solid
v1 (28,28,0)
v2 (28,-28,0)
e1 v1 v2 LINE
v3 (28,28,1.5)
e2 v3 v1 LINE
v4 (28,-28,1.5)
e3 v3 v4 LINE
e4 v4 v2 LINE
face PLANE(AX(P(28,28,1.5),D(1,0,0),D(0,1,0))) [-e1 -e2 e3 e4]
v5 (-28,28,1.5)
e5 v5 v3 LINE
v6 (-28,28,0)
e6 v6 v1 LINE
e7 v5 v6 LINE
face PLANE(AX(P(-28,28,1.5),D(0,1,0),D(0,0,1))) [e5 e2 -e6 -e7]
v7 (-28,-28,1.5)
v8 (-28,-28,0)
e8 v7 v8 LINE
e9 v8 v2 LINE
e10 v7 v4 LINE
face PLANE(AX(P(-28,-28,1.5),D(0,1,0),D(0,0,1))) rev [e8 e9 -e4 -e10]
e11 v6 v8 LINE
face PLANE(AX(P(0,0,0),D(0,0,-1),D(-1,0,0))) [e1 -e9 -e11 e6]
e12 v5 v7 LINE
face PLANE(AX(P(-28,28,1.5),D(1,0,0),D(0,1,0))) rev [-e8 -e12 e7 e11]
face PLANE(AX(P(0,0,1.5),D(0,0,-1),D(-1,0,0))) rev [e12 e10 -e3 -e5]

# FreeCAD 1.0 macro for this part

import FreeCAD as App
import Part
import Sketcher
from FreeCAD import Vector

doc = App.newDocument("Part")
params = doc.addObject("Spreadsheet::Sheet", "Params")
for row, (alias, value) in enumerate([
    ("sketch1_width", "56 mm"),
    ("pad1_length", "1.5 mm"),
], start=1):
    params.set(f"A{row}", alias)
    params.set(f"B{row}", "=" + value)
    params.setAlias(f"B{row}", alias)

body = doc.addObject("PartDesign::Body", "Body")

# Sketch on XY plane
sketch1 = doc.addObject("Sketcher::SketchObject", "Sketch")
body.addObject(sketch1)
sketch1.AttachmentSupport = (doc.XY_Plane, [""])
sketch1.MapMode = "FlatFace"
sketch1.addGeometry(Part.LineSegment(Vector(-28, 28, 0), Vector(-28, -28, 0)), False)
sketch1.addGeometry(Part.LineSegment(Vector(-28, -28, 0), Vector(28, -28, 0)), False)
sketch1.addGeometry(Part.LineSegment(Vector(28, -28, 0), Vector(28, 28, 0)), False)
sketch1.addGeometry(Part.LineSegment(Vector(28, 28, 0), Vector(-28, 28, 0)), False)
sketch1.addConstraint(Sketcher.Constraint("Coincident", 0, 2, 1, 1))
sketch1.addConstraint(Sketcher.Constraint("Coincident", 1, 2, 2, 1))
sketch1.addConstraint(Sketcher.Constraint("Coincident", 2, 2, 3, 1))
sketch1.addConstraint(Sketcher.Constraint("Coincident", 3, 2, 0, 1))
sketch1.addConstraint(Sketcher.Constraint("Vertical", 0))
sketch1.addConstraint(Sketcher.Constraint("Horizontal", 1))
sketch1.addConstraint(Sketcher.Constraint("Vertical", 2))
sketch1.addConstraint(Sketcher.Constraint("Horizontal", 3))
sketch1.addConstraint(Sketcher.Constraint("Symmetric", 0, 2, 2, 2, -1, 1))
sketch1.addConstraint(Sketcher.Constraint("Equal", 3, 0))
sketch1.addConstraint(Sketcher.Constraint("DistanceX", 1, 1, 1, 2, 56.0))
sketch1.setExpression("Constraints[10]", "Params.sketch1_width")
pad1 = doc.addObject("PartDesign::Pad", "Pad")
body.addObject(pad1)
pad1.Profile = sketch1
pad1.setExpression("Length", "Params.pad1_length")

doc.recompute()
